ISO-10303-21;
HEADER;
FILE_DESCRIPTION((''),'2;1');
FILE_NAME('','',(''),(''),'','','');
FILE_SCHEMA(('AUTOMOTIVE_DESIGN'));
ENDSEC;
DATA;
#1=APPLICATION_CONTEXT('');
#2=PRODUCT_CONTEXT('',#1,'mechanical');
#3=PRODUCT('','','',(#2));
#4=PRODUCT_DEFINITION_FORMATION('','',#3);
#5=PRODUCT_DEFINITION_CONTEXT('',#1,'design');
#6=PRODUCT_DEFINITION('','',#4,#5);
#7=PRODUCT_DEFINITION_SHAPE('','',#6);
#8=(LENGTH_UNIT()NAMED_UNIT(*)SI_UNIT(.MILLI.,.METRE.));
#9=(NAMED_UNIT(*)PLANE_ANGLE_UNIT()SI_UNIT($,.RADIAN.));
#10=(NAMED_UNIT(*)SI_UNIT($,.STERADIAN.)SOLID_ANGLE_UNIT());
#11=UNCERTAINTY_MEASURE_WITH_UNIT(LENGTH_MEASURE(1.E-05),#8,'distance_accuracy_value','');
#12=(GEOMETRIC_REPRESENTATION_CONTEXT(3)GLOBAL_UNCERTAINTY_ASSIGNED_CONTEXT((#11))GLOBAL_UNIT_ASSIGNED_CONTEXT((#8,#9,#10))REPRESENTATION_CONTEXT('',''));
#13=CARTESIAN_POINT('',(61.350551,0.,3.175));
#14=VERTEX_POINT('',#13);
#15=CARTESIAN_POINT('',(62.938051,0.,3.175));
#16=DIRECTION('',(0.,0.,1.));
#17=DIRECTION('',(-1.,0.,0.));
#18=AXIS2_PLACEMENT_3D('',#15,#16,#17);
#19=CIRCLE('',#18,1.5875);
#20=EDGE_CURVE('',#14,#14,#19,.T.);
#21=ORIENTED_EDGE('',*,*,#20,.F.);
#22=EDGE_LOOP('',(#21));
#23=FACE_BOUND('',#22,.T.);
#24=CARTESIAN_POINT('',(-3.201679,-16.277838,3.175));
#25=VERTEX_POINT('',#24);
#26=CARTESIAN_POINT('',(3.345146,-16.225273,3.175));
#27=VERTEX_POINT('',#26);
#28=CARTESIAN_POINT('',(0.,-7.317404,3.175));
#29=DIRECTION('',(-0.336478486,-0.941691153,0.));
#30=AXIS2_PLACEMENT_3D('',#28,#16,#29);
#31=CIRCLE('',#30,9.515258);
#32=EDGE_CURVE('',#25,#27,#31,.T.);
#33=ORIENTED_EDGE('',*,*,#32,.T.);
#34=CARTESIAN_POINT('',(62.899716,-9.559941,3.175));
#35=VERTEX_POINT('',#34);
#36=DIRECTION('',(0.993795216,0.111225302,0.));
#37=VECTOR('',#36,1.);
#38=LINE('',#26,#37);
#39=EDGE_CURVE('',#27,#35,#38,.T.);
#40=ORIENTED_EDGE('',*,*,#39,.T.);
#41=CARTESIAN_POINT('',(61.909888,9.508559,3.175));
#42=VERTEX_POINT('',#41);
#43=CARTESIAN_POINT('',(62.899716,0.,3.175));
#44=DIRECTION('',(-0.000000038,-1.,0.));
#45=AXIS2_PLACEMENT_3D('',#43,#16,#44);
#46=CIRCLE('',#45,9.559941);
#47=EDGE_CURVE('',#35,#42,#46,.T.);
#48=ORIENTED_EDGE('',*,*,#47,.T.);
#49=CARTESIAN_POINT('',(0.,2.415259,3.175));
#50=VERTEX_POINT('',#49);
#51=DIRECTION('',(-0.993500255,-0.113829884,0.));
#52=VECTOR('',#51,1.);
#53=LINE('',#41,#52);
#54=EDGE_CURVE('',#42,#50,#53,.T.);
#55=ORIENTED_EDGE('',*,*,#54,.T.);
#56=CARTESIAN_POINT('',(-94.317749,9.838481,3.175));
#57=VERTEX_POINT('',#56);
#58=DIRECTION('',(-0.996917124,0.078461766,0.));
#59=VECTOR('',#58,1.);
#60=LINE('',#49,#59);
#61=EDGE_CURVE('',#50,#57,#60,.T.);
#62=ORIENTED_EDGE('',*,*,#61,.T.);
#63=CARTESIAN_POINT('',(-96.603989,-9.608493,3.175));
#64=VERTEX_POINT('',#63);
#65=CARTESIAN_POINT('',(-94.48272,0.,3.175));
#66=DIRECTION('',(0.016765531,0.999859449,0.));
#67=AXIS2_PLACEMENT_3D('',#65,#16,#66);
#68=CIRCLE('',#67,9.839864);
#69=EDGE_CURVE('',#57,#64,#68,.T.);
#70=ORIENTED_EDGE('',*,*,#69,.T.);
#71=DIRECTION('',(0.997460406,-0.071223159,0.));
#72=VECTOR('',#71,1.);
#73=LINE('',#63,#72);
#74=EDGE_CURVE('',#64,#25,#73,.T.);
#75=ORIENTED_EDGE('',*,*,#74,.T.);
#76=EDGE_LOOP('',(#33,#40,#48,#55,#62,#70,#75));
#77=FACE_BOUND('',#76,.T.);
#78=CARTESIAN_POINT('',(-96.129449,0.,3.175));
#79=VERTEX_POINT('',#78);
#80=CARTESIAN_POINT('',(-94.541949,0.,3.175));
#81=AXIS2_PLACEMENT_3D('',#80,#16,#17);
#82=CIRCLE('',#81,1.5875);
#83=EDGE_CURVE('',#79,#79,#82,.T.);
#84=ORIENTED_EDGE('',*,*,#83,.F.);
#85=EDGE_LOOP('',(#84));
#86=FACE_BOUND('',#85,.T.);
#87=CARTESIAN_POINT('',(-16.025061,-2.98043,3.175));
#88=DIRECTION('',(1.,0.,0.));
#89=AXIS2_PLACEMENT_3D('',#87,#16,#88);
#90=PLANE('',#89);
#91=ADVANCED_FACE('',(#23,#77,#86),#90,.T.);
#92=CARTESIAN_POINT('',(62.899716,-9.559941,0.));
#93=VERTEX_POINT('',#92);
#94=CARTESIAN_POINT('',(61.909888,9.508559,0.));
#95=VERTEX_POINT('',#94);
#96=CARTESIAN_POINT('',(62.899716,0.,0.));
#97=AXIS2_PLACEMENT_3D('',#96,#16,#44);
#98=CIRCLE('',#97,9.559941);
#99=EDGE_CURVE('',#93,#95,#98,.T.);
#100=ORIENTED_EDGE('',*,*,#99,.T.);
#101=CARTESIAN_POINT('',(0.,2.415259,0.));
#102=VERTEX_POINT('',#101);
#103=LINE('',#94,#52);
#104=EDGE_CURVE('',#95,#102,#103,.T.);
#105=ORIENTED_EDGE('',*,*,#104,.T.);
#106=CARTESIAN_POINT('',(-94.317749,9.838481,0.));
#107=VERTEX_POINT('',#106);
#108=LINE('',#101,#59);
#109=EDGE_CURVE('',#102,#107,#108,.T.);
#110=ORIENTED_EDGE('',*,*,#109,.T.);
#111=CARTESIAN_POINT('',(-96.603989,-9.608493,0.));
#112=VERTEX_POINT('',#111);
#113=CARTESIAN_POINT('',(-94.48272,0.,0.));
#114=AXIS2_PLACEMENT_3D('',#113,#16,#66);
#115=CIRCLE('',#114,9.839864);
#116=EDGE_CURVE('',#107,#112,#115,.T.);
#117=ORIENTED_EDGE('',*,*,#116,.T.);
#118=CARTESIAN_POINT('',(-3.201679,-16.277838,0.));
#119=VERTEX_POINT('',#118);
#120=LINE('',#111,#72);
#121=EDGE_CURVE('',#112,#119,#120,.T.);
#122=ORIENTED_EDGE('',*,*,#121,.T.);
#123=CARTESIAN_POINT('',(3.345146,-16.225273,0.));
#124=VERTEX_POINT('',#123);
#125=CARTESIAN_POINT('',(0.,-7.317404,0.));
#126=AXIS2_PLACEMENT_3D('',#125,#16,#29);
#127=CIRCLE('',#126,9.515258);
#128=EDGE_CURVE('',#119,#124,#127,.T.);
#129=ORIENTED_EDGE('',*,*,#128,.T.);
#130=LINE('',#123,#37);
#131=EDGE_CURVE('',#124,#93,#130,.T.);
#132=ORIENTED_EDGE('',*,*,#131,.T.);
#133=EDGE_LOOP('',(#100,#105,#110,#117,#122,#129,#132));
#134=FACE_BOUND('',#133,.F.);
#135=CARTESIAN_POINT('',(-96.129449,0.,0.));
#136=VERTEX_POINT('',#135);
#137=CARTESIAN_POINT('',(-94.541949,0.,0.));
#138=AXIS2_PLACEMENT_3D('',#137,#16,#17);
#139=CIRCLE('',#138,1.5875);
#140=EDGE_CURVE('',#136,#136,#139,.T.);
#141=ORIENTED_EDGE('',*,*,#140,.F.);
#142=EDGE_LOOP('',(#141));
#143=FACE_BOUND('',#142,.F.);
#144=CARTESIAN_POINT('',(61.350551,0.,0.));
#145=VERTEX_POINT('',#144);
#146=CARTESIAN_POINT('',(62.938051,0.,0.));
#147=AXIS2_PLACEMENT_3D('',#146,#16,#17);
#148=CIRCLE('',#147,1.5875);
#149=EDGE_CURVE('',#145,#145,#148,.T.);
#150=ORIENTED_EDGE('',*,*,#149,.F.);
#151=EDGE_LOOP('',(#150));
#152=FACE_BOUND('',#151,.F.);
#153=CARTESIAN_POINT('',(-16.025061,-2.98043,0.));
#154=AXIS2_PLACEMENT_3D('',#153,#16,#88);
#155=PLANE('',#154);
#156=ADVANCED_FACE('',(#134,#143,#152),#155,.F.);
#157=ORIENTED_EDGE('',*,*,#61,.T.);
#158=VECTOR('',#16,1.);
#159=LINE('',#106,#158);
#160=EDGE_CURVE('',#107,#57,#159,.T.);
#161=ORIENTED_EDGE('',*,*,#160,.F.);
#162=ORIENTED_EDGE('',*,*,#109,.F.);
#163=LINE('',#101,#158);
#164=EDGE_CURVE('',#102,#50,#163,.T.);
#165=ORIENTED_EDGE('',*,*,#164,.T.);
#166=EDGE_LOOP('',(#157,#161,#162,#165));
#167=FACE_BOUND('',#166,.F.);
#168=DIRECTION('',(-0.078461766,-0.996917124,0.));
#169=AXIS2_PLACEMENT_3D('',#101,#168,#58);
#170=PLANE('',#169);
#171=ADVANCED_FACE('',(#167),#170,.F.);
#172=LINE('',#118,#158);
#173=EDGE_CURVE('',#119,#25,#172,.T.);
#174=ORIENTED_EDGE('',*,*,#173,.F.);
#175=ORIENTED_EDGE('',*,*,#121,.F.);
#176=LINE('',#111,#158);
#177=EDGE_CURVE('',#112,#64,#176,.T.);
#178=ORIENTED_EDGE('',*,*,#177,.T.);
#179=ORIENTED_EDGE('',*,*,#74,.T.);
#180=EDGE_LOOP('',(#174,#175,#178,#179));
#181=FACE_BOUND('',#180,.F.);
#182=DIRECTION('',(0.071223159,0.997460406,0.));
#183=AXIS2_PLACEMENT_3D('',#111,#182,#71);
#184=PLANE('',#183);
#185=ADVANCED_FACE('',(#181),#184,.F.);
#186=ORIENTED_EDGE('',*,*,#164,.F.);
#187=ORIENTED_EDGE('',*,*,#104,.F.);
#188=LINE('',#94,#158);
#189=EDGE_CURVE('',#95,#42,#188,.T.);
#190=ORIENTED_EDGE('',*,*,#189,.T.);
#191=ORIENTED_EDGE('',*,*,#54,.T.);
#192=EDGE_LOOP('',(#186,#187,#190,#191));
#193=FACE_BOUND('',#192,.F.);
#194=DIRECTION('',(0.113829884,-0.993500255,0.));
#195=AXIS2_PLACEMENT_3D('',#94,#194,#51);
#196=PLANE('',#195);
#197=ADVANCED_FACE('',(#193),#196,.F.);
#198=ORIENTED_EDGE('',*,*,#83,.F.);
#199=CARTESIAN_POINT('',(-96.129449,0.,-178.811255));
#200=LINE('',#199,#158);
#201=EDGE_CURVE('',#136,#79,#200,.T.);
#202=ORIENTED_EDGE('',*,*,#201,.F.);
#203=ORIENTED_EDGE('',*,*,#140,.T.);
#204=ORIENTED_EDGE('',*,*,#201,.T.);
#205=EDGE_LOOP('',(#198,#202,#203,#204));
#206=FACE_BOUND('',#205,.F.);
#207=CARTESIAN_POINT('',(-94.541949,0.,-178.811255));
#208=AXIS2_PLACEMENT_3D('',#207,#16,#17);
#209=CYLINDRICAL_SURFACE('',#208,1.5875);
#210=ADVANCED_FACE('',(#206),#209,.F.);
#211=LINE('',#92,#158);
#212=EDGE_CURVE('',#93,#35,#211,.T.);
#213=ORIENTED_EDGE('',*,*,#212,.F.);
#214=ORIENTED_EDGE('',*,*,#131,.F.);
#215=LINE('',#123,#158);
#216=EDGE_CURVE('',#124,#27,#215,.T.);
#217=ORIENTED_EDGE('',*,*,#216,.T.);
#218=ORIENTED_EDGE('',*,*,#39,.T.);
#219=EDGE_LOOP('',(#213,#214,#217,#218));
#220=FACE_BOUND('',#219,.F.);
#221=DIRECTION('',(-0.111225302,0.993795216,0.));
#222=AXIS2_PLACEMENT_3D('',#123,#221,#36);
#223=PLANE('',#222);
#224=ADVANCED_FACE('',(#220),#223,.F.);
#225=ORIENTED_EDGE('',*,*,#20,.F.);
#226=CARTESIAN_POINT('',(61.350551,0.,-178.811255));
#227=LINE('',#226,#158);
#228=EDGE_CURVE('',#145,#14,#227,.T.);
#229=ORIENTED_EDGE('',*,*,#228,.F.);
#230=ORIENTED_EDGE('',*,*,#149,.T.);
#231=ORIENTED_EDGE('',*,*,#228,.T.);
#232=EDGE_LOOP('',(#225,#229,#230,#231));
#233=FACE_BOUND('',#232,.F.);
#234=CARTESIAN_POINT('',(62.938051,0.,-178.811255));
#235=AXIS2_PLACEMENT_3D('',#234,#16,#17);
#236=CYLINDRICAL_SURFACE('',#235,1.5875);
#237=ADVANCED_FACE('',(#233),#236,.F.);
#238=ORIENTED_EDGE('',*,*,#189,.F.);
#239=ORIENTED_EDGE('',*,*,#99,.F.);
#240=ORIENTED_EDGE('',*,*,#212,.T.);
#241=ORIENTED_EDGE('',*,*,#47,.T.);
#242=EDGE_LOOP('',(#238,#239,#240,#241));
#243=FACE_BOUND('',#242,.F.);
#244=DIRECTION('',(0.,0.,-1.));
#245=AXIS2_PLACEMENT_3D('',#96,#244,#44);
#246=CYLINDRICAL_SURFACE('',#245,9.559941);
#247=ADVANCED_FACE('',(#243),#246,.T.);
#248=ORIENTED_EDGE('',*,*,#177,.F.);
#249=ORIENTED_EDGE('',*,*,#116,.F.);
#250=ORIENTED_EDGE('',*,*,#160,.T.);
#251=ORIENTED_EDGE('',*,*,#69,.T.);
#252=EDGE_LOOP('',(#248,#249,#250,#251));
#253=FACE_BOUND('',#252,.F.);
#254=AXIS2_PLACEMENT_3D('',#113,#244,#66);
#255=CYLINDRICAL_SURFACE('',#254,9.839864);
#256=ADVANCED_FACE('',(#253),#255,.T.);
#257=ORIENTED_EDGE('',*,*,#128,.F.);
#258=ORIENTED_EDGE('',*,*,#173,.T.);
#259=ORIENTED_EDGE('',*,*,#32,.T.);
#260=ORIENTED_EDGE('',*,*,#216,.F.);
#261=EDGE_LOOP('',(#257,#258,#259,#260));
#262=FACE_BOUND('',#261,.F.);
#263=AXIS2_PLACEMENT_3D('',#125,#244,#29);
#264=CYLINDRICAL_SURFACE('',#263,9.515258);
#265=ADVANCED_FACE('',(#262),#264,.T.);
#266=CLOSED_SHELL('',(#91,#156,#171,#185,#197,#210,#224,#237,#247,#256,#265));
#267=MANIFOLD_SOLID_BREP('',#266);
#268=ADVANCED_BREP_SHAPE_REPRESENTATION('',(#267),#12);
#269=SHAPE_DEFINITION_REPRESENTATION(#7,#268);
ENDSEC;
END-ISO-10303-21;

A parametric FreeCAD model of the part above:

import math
import FreeCAD as App
import Part
import Sketcher
Q = App.Units.Quantity

doc = App.newDocument("Part")
params = doc.addObject("Spreadsheet::Sheet", "Params")
for row, (alias, value) in enumerate([
    ("pad1_length", "0.125 in"),
    ("sketch2_diameter", "0.125 in"),
    ("hole_diameter", "0.125 in"),
], start=1):
    params.set(f"A{row}", alias)
    params.set(f"B{row}", "=" + value)
    params.setAlias(f"B{row}", alias)

body = doc.addObject("PartDesign::Body", "Body")

sketch1 = body.newObject("Sketcher::SketchObject", "Sketch")
sketch1.AttachmentSupport = (doc.getObject("XY_Plane"), [""])
sketch1.MapMode = "FlatFace"
sketch1.addGeometry(Part.LineSegment(App.Vector(0, 2, 0), App.Vector(-94, 10, 0)), False)
sketch1.addGeometry(Part.ArcOfCircle(Part.Circle(App.Vector(-94, 0, 0), App.Vector(0, 0, 1), 10), math.radians(89), math.radians(258)), False)
sketch1.addGeometry(Part.LineSegment(App.Vector(-97, -10, 0), App.Vector(-3, -16, 0)), False)
sketch1.addGeometry(Part.ArcOfCircle(Part.Circle(App.Vector(0, -7, 0), App.Vector(0, 0, 1), 10), math.radians(-110), math.radians(-69)), False)
sketch1.addGeometry(Part.LineSegment(App.Vector(3, -16, 0), App.Vector(63, -10, 0)), False)
sketch1.addGeometry(Part.ArcOfCircle(Part.Circle(App.Vector(63, 0, 0), App.Vector(0, 0, 1), 10), math.radians(-90), math.radians(96)), False)
sketch1.addGeometry(Part.LineSegment(App.Vector(62, 10, 0), App.Vector(0, 2, 0)), False)
sketch1.addConstraint(Sketcher.Constraint("Coincident", 0, 2, 1, 1))
sketch1.addConstraint(Sketcher.Constraint("Coincident", 1, 2, 2, 1))
sketch1.addConstraint(Sketcher.Constraint("Coincident", 2, 2, 3, 1))
sketch1.addConstraint(Sketcher.Constraint("Coincident", 3, 2, 4, 1))
sketch1.addConstraint(Sketcher.Constraint("Coincident", 4, 2, 5, 1))
sketch1.addConstraint(Sketcher.Constraint("Coincident", 5, 2, 6, 1))
sketch1.addConstraint(Sketcher.Constraint("Coincident", 6, 2, 0, 1))
sketch1.addConstraint(Sketcher.Constraint("PointOnObject", 1, 3, -1))
sketch1.addConstraint(Sketcher.Constraint("PointOnObject", 3, 3, -2))
sketch1.addConstraint(Sketcher.Constraint("PointOnObject", 5, 3, -1))
sketch1.addConstraint(Sketcher.Constraint("PointOnObject", 6, 2, -2))
sketch1.addConstraint(Sketcher.Constraint("Vertical", 5, 3, 4, 2))
sketch1.addConstraint(Sketcher.Constraint("Radius", 5, 9.559941))
sketch1.addConstraint(Sketcher.Constraint("Radius", 1, 9.839864))
sketch1.addConstraint(Sketcher.Constraint("Radius", 3, 9.515258))
sketch1.addConstraint(Sketcher.Constraint("Distance", 4, 59.9264))
sketch1.addConstraint(Sketcher.Constraint("DistanceY", 4, 2, 5, 2, 19.0685))
sketch1.addConstraint(Sketcher.Constraint("DistanceY", 6, 2, 5, 2, 7.0933))
sketch1.addConstraint(Sketcher.Constraint("Distance", 0, 94.609418))
sketch1.addConstraint(Sketcher.Constraint("Distance", 6, 62.314919))
sketch1.addConstraint(Sketcher.Constraint("DistanceX", 1, 3, -1, 1, 94.48272))
sketch1.addConstraint(Sketcher.Constraint("DistanceX", 1, 2, -1, 1, 96.603989))
sketch1.addConstraint(Sketcher.Constraint("DistanceX", 2, 2, -1, 1, 3.201679))
sketch1.addConstraint(Sketcher.Constraint("DistanceY", 1, 2, 3, 3, 2.291089))
pad1 = body.newObject("PartDesign::Pad", "Pad")
pad1.Profile = sketch1
pad1.setExpression("Length", "Params.pad1_length")

sketch2 = body.newObject("Sketcher::SketchObject", "Sketch001")
sketch2.AttachmentSupport = (doc.getObject("XY_Plane"), [""])
sketch2.MapMode = "FlatFace"
sketch2.addGeometry(Part.Circle(App.Vector(-94.5, 0, 0), App.Vector(0, 0, 1), 1.6), False)
sketch2.addGeometry(Part.Circle(App.Vector(62.9, 0, 0), App.Vector(0, 0, 1), 1.6), False)
sketch2.addConstraint(Sketcher.Constraint("Equal", 0, 1))
sketch2.addConstraint(Sketcher.Constraint("PointOnObject", 0, 3, -1))
sketch2.addConstraint(Sketcher.Constraint("PointOnObject", 1, 3, -1))
sketch2.addConstraint(Sketcher.Constraint("Diameter", 0, Q("0.125 in")))
sketch2.addConstraint(Sketcher.Constraint("DistanceX", 0, 3, 1, 3, Q("6.2 in")))
sketch2.addConstraint(Sketcher.Constraint("DistanceX", 0, 3, -1, 1, 94.541949))
sketch2.setExpression("Constraints[3]", "Params.sketch2_diameter")
doc.recompute()
hole = body.newObject("PartDesign::Hole", "Hole")
hole.Profile = sketch2
hole.ThreadType = "None"
hole.setExpression("Diameter", "Params.hole_diameter")
hole.DepthType = "ThroughAll"
hole.Reversed = True

doc.recompute()
